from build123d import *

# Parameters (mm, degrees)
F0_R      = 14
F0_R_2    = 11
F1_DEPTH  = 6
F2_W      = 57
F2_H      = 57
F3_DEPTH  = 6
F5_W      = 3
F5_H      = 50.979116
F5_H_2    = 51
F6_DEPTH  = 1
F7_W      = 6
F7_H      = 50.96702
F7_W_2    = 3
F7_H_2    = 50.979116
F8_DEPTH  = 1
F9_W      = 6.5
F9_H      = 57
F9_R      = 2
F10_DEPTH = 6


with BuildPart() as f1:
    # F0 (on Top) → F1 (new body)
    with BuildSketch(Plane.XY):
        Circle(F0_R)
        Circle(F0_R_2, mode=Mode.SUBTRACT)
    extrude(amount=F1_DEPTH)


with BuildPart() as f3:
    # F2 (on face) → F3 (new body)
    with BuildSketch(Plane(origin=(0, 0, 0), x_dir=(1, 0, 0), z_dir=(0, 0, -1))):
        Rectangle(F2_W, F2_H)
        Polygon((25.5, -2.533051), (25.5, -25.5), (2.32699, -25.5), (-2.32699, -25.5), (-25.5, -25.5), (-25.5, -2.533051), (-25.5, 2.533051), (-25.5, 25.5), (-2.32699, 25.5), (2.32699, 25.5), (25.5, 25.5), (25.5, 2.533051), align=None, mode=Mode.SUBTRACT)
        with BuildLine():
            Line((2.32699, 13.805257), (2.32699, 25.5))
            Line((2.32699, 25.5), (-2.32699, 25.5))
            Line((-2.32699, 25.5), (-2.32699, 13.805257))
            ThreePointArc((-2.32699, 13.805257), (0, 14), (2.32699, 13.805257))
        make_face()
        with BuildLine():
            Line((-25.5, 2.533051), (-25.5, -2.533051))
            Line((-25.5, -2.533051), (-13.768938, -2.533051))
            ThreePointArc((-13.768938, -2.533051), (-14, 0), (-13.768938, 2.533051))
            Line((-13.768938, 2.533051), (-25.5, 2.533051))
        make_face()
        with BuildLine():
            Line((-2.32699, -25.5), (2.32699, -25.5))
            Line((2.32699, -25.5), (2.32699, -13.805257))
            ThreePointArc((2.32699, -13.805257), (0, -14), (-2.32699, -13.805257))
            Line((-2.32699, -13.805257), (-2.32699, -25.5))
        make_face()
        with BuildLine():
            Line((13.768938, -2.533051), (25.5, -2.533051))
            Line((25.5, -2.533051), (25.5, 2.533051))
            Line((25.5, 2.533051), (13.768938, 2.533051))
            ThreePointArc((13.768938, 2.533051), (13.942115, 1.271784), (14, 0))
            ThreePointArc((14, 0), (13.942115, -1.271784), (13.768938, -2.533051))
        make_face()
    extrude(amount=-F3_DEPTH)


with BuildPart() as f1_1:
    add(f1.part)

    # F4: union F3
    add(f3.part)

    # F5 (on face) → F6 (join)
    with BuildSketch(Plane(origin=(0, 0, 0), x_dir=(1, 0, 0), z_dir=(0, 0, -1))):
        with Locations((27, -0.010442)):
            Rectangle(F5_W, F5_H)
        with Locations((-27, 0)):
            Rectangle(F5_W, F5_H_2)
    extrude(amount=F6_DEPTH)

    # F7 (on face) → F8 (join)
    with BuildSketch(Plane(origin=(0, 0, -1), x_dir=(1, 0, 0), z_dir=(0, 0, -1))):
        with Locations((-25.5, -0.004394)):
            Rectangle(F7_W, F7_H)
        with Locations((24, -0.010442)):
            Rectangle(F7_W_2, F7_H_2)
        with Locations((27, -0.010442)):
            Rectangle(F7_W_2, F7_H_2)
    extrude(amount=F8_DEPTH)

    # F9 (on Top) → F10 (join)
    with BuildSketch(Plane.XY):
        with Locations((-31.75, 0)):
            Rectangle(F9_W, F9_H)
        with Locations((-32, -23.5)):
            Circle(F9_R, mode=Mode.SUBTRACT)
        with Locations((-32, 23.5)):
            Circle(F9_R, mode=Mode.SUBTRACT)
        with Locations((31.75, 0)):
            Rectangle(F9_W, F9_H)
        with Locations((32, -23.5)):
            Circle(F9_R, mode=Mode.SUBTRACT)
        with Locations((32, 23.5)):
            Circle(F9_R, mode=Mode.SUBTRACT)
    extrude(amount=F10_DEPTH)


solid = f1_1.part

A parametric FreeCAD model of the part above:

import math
import FreeCAD as App
import Part
import Sketcher
Q = App.Units.Quantity


def add_polygon(sketch, points):
    """Adds a closed chain of lines whose ends are joined by coincident constraints."""
    first, n = sketch.GeometryCount, len(points)
    for a, b in zip(points, points[1:] + points[:1]):
        sketch.addGeometry(Part.LineSegment(App.Vector(*a, 0), App.Vector(*b, 0)), False)
    for i in range(n):
        sketch.addConstraint(Sketcher.Constraint("Coincident", first + i, 2, first + (i + 1) % n, 1))

doc = App.newDocument("Part")
body = doc.addObject("PartDesign::Body", "Body")

sketch1 = body.newObject("Sketcher::SketchObject", "Sketch")
sketch1.AttachmentSupport = (doc.getObject("XY_Plane"), [""])
sketch1.MapMode = "FlatFace"
sketch1.addGeometry([
    Part.Circle(App.Vector(0, 0, 0), App.Vector(0, 0, 1), 14),
    Part.Circle(App.Vector(0, 0, 0), App.Vector(0, 0, 1), 11),
], False)
sketch1.addConstraint([
    Sketcher.Constraint("Coincident", 0, 3, -1, 1),
    Sketcher.Constraint("Coincident", 1, 3, -1, 1),
    Sketcher.Constraint("Diameter", 0, Q("28 mm")),
    Sketcher.Constraint("Diameter", 1, Q("22 mm")),
])
pad1 = body.newObject("PartDesign::Pad", "Pad")
pad1.Profile = sketch1
pad1.Length = 6
body2 = doc.addObject("PartDesign::Body", "Body001")

sketch2 = body2.newObject("Sketcher::SketchObject", "Sketch001")
sketch2.AttachmentSupport = (doc.getObject("XY_Plane001"), [""])
sketch2.MapMode = "FlatFace"
add_polygon(sketch2, [(-28.5, -28.5), (-28.5, 28.5), (28.5, 28.5), (28.5, -28.5)])
sketch2.addGeometry(Part.LineSegment(App.Vector(25.5, -25.5, 0), App.Vector(25.5, -2.533051, 0)), False)
sketch2.addGeometry(Part.LineSegment(App.Vector(25.5, -2.533051, 0), App.Vector(13.768938, -2.533051, 0)), False)
sketch2.addGeometry(Part.ArcOfCircle(Part.Circle(App.Vector(0.00004, -0.000004, 0), App.Vector(0, 0, 1), 13.99996), math.radians(-10.424078), math.radians(0.000016)), False)
sketch2.addGeometry(Part.ArcOfCircle(Part.Circle(App.Vector(0.00004, 0.000004, 0), App.Vector(0, 0, 1), 13.99996), math.radians(-0.000016), math.radians(10.424078)), False)
sketch2.addGeometry(Part.LineSegment(App.Vector(13.768938, 2.533051, 0), App.Vector(25.5, 2.533051, 0)), False)
sketch2.addGeometry(Part.LineSegment(App.Vector(25.5, 2.533051, 0), App.Vector(25.5, 25.5, 0)), False)
sketch2.addGeometry(Part.LineSegment(App.Vector(25.5, 25.5, 0), App.Vector(2.32699, 25.5, 0)), False)
sketch2.addGeometry(Part.LineSegment(App.Vector(2.32699, 25.5, 0), App.Vector(2.32699, 13.805257, 0)), False)
sketch2.addGeometry(Part.ArcOfCircle(Part.Circle(App.Vector(0, -0.000008, 0), App.Vector(0, 0, 1), 14.000008), math.radians(80.432265), math.radians(99.567735)), False)
sketch2.addGeometry(Part.LineSegment(App.Vector(-2.32699, 13.805257, 0), App.Vector(-2.32699, 25.5, 0)), False)
sketch2.addGeometry(Part.LineSegment(App.Vector(-2.32699, 25.5, 0), App.Vector(-25.5, 25.5, 0)), False)
sketch2.addGeometry(Part.LineSegment(App.Vector(-25.5, 25.5, 0), App.Vector(-25.5, 2.533051, 0)), False)
sketch2.addGeometry(Part.LineSegment(App.Vector(-25.5, 2.533051, 0), App.Vector(-13.768938, 2.533051, 0)), False)
sketch2.addGeometry(Part.ArcOfCircle(Part.Circle(App.Vector(0.000002, 0, 0), App.Vector(0, 0, 1), 14.000002), math.radians(169.575938), math.radians(190.424062)), False)
sketch2.addGeometry(Part.LineSegment(App.Vector(-13.768938, -2.533051, 0), App.Vector(-25.5, -2.533051, 0)), False)
sketch2.addGeometry(Part.LineSegment(App.Vector(-25.5, -2.533051, 0), App.Vector(-25.5, -25.5, 0)), False)
sketch2.addGeometry(Part.LineSegment(App.Vector(-25.5, -25.5, 0), App.Vector(-2.32699, -25.5, 0)), False)
sketch2.addGeometry(Part.LineSegment(App.Vector(-2.32699, -25.5, 0), App.Vector(-2.32699, -13.805257, 0)), False)
sketch2.addGeometry(Part.ArcOfCircle(Part.Circle(App.Vector(0, 0.000008, 0), App.Vector(0, 0, 1), 14.000008), math.radians(-99.567735), math.radians(-80.432265)), False)
sketch2.addGeometry(Part.LineSegment(App.Vector(2.32699, -13.805257, 0), App.Vector(2.32699, -25.5, 0)), False)
sketch2.addGeometry(Part.LineSegment(App.Vector(2.32699, -25.5, 0), App.Vector(25.5, -25.5, 0)), False)
sketch2.addConstraint([
    Sketcher.Constraint("Coincident", 4, 2, 5, 1),
    Sketcher.Constraint("Coincident", 5, 2, 6, 1),
    Sketcher.Constraint("Tangent", 6, 2, 7, 1),
    Sketcher.Constraint("Coincident", 7, 2, 8, 1),
    Sketcher.Constraint("Coincident", 8, 2, 9, 1),
    Sketcher.Constraint("Coincident", 9, 2, 10, 1),
    Sketcher.Constraint("Coincident", 10, 2, 11, 1),
    Sketcher.Constraint("Coincident", 11, 2, 12, 1),
    Sketcher.Constraint("Coincident", 12, 2, 13, 1),
    Sketcher.Constraint("Coincident", 13, 2, 14, 1),
    Sketcher.Constraint("Coincident", 14, 2, 15, 1),
    Sketcher.Constraint("Coincident", 15, 2, 16, 1),
    Sketcher.Constraint("Coincident", 16, 2, 17, 1),
    Sketcher.Constraint("Coincident", 17, 2, 18, 1),
    Sketcher.Constraint("Coincident", 18, 2, 19, 1),
    Sketcher.Constraint("Coincident", 19, 2, 20, 1),
    Sketcher.Constraint("Coincident", 20, 2, 21, 1),
    Sketcher.Constraint("Coincident", 21, 2, 22, 1),
    Sketcher.Constraint("Coincident", 22, 2, 23, 1),
    Sketcher.Constraint("Coincident", 23, 2, 24, 1),
    Sketcher.Constraint("Coincident", 24, 2, 4, 1),
    Sketcher.Constraint("Vertical", 0),
    Sketcher.Constraint("Horizontal", 1),
    Sketcher.Constraint("Vertical", 2),
    Sketcher.Constraint("Horizontal", 3),
    Sketcher.Constraint("Vertical", 4),
    Sketcher.Constraint("Horizontal", 5),
    Sketcher.Constraint("Horizontal", 8),
    Sketcher.Constraint("Vertical", 9),
    Sketcher.Constraint("Horizontal", 10),
    Sketcher.Constraint("Vertical", 11),
    Sketcher.Constraint("Vertical", 13),
    Sketcher.Constraint("Horizontal", 14),
    Sketcher.Constraint("Vertical", 15),
    Sketcher.Constraint("Horizontal", 16),
    Sketcher.Constraint("Horizontal", 18),
    Sketcher.Constraint("Vertical", 19),
    Sketcher.Constraint("Horizontal", 20),
    Sketcher.Constraint("Vertical", 21),
    Sketcher.Constraint("Vertical", 23),
    Sketcher.Constraint("Horizontal", 24),
    Sketcher.Constraint("Coincident", 12, 3, -1, 1),
    Sketcher.Constraint("Coincident", 17, 3, -1, 1),
    Sketcher.Constraint("Coincident", 22, 3, -1, 1),
    Sketcher.Constraint("Equal", 6, 7),
    Sketcher.Constraint("Equal", 12, 22),
    Sketcher.Constraint("Symmetric", 0, 2, 2, 2, -1, 1),
    Sketcher.Constraint("Symmetric", 4, 2, 15, 2, -1, 1),
    Sketcher.Constraint("Symmetric", 7, 2, 17, 2, -1, 1),
    Sketcher.Constraint("Symmetric", 9, 2, 19, 2, -1, 1),
    Sketcher.Constraint("Symmetric", 13, 2, 23, 2, -1, 1),
    Sketcher.Constraint("Symmetric", 10, 2, 13, 2, -2),
    Sketcher.Constraint("Symmetric", 8, 2, 15, 2, -2),
    Sketcher.Constraint("PointOnObject", 6, 2, -1),
    Sketcher.Constraint("Horizontal", 21, 2, 22, 2),
    Sketcher.Constraint("Vertical", 5, 2, 7, 2),
    Sketcher.Constraint("Equal", 3, 0),
    Sketcher.Constraint("DistanceX", 1, 1, 1, 2, Q("57 mm")),
    Sketcher.Constraint("DistanceX", -1, 1, 6, 2, Q("14 mm")),
    Sketcher.Constraint("DistanceX", 9, 2, 1, 2, Q("3 mm")),
    Sketcher.Constraint("DistanceY", 9, 2, 1, 2, Q("3 mm")),
    Sketcher.Constraint("Radius", 6, Q("13.99996 mm")),
    Sketcher.Constraint("Radius", 12, Q("14.000008 mm")),
    Sketcher.Constraint("DistanceX", 10, 2, 10, 1, Q("23.17301 mm")),
    Sketcher.Constraint("DistanceY", 4, 1, 4, 2, Q("22.966949 mm")),
])
pad2 = body2.newObject("PartDesign::Pad", "Pad001")
pad2.Profile = sketch2
pad2.Length = 6
doc.recompute()

boolean = body.newObject("PartDesign::Boolean", "Boolean")
boolean.Type = "Fuse"
boolean.addObjects([body2])

sketch3 = body.newObject("Sketcher::SketchObject", "Sketch002")
sketch3.AttachmentSupport = (doc.getObject("XY_Plane"), [""])
sketch3.MapMode = "FlatFace"
add_polygon(sketch3, [(25.5, -25.479116), (25.5, 25.5), (28.5, 25.5), (28.5, -25.479116)])
add_polygon(sketch3, [(-28.5, -25.5), (-28.5, 25.5), (-25.5, 25.5), (-25.5, -25.5)])
sketch3.addConstraint([
    Sketcher.Constraint("Vertical", 0),
    Sketcher.Constraint("Horizontal", 1),
    Sketcher.Constraint("Vertical", 2),
    Sketcher.Constraint("Horizontal", 3),
    Sketcher.Constraint("Vertical", 4),
    Sketcher.Constraint("Horizontal", 5),
    Sketcher.Constraint("Vertical", 6),
    Sketcher.Constraint("Horizontal", 7),
    Sketcher.Constraint("Symmetric", 0, 2, 6, 2, -1, 1),
    Sketcher.Constraint("Symmetric", 1, 2, 4, 2, -2),
    Sketcher.Constraint("DistanceX", 1, 1, 1, 2, Q("3 mm")),
    Sketcher.Constraint("DistanceY", 4, 1, 4, 2, Q("51 mm")),
    Sketcher.Constraint("DistanceX", 4, 2, 0, 2, Q("54 mm")),
    Sketcher.Constraint("DistanceY", 0, 1, 0, 2, Q("50.979116 mm")),
])
pad3 = body.newObject("PartDesign::Pad", "Pad002")
pad3.Profile = sketch3
pad3.Length = 1
pad3.Reversed = True

sketch4 = body.newObject("Sketcher::SketchObject", "Sketch003")
sketch4.AttachmentSupport = (doc.getObject("XY_Plane"), [""])
sketch4.MapMode = "FlatFace"
sketch4.AttachmentOffset = App.Placement(App.Vector(0, 0, -1), App.Rotation())
add_polygon(sketch4, [(-28.5, -25.479116), (-28.5, 25.487904), (-22.5, 25.487904), (-22.5, -25.479116)])
add_polygon(sketch4, [(22.5, -25.479116), (22.5, 25.5), (28.5, 25.5), (28.5, -25.479116)])
sketch4.addConstraint([
    Sketcher.Constraint("Vertical", 0),
    Sketcher.Constraint("Horizontal", 1),
    Sketcher.Constraint("Vertical", 2),
    Sketcher.Constraint("Horizontal", 3),
    Sketcher.Constraint("Vertical", 4),
    Sketcher.Constraint("Horizontal", 5),
    Sketcher.Constraint("Vertical", 6),
    Sketcher.Constraint("Horizontal", 7),
    Sketcher.Constraint("Symmetric", 3, 2, 6, 2, -2),
    Sketcher.Constraint("Equal", 3, 5),
    Sketcher.Constraint("DistanceX", 1, 1, 1, 2, Q("6 mm")),
    Sketcher.Constraint("DistanceX", 1, 2, 4, 2, Q("45 mm")),
    Sketcher.Constraint("DistanceY", -1, 1, 4, 2, Q("25.5 mm")),
    Sketcher.Constraint("DistanceY", 0, 1, 0, 2, Q("50.96702 mm")),
    Sketcher.Constraint("DistanceY", 4, 1, 4, 2, Q("50.979116 mm")),
])
pad4 = body.newObject("PartDesign::Pad", "Pad003")
pad4.Profile = sketch4
pad4.Length = 1
pad4.Reversed = True

sketch5 = body.newObject("Sketcher::SketchObject", "Sketch004")
sketch5.AttachmentSupport = (doc.getObject("XY_Plane"), [""])
sketch5.MapMode = "FlatFace"
add_polygon(sketch5, [(-35, 28.5), (-35, -28.5), (-28.5, -28.5), (-28.5, 28.5)])
sketch5.addGeometry(Part.Circle(App.Vector(-32, -23.5, 0), App.Vector(0, 0, 1), 2), False)
sketch5.addGeometry(Part.Circle(App.Vector(-32, 23.5, 0), App.Vector(0, 0, 1), 2), False)
add_polygon(sketch5, [(28.5, 28.5), (28.5, -28.5), (35, -28.5), (35, 28.5)])
sketch5.addGeometry(Part.Circle(App.Vector(32, -23.5, 0), App.Vector(0, 0, 1), 2), False)
sketch5.addGeometry(Part.Circle(App.Vector(32, 23.5, 0), App.Vector(0, 0, 1), 2), False)
sketch5.addConstraint([
    Sketcher.Constraint("Vertical", 0),
    Sketcher.Constraint("Horizontal", 1),
    Sketcher.Constraint("Vertical", 2),
    Sketcher.Constraint("Horizontal", 3),
    Sketcher.Constraint("Vertical", 6),
    Sketcher.Constraint("Horizontal", 7),
    Sketcher.Constraint("Vertical", 8),
    Sketcher.Constraint("Horizontal", 9),
    Sketcher.Constraint("Equal", 4, 5),
    Sketcher.Constraint("Equal", 5, 10),
    Sketcher.Constraint("Equal", 10, 11),
    Sketcher.Constraint("Symmetric", 5, 3, 10, 3, -1, 1),
    Sketcher.Constraint("Symmetric", 4, 3, 11, 3, -1, 1),
    Sketcher.Constraint("Symmetric", 2, 2, 6, 2, -1, 1),
    Sketcher.Constraint("Symmetric", 0, 2, 8, 2, -1, 1),
    Sketcher.Constraint("Symmetric", 4, 3, 10, 3, -2),
    Sketcher.Constraint("Horizontal", 1, 2, 6, 2),
    Sketcher.Constraint("Diameter", 4, Q("4 mm")),
    Sketcher.Constraint("DistanceY", 0, 2, 0, 1, Q("57 mm")),
    Sketcher.Constraint("DistanceX", 1, 1, 1, 2, Q("6.5 mm")),
    Sketcher.Constraint("DistanceX", 4, 3, -1, 1, Q("32 mm")),
    Sketcher.Constraint("DistanceX", 0, 2, -1, 1, Q("35 mm")),
    Sketcher.Constraint("DistanceY", 4, 3, 5, 3, Q("47 mm")),
])
pad5 = body.newObject("PartDesign::Pad", "Pad004")
pad5.Profile = sketch5
pad5.Length = 6

doc.recompute()
